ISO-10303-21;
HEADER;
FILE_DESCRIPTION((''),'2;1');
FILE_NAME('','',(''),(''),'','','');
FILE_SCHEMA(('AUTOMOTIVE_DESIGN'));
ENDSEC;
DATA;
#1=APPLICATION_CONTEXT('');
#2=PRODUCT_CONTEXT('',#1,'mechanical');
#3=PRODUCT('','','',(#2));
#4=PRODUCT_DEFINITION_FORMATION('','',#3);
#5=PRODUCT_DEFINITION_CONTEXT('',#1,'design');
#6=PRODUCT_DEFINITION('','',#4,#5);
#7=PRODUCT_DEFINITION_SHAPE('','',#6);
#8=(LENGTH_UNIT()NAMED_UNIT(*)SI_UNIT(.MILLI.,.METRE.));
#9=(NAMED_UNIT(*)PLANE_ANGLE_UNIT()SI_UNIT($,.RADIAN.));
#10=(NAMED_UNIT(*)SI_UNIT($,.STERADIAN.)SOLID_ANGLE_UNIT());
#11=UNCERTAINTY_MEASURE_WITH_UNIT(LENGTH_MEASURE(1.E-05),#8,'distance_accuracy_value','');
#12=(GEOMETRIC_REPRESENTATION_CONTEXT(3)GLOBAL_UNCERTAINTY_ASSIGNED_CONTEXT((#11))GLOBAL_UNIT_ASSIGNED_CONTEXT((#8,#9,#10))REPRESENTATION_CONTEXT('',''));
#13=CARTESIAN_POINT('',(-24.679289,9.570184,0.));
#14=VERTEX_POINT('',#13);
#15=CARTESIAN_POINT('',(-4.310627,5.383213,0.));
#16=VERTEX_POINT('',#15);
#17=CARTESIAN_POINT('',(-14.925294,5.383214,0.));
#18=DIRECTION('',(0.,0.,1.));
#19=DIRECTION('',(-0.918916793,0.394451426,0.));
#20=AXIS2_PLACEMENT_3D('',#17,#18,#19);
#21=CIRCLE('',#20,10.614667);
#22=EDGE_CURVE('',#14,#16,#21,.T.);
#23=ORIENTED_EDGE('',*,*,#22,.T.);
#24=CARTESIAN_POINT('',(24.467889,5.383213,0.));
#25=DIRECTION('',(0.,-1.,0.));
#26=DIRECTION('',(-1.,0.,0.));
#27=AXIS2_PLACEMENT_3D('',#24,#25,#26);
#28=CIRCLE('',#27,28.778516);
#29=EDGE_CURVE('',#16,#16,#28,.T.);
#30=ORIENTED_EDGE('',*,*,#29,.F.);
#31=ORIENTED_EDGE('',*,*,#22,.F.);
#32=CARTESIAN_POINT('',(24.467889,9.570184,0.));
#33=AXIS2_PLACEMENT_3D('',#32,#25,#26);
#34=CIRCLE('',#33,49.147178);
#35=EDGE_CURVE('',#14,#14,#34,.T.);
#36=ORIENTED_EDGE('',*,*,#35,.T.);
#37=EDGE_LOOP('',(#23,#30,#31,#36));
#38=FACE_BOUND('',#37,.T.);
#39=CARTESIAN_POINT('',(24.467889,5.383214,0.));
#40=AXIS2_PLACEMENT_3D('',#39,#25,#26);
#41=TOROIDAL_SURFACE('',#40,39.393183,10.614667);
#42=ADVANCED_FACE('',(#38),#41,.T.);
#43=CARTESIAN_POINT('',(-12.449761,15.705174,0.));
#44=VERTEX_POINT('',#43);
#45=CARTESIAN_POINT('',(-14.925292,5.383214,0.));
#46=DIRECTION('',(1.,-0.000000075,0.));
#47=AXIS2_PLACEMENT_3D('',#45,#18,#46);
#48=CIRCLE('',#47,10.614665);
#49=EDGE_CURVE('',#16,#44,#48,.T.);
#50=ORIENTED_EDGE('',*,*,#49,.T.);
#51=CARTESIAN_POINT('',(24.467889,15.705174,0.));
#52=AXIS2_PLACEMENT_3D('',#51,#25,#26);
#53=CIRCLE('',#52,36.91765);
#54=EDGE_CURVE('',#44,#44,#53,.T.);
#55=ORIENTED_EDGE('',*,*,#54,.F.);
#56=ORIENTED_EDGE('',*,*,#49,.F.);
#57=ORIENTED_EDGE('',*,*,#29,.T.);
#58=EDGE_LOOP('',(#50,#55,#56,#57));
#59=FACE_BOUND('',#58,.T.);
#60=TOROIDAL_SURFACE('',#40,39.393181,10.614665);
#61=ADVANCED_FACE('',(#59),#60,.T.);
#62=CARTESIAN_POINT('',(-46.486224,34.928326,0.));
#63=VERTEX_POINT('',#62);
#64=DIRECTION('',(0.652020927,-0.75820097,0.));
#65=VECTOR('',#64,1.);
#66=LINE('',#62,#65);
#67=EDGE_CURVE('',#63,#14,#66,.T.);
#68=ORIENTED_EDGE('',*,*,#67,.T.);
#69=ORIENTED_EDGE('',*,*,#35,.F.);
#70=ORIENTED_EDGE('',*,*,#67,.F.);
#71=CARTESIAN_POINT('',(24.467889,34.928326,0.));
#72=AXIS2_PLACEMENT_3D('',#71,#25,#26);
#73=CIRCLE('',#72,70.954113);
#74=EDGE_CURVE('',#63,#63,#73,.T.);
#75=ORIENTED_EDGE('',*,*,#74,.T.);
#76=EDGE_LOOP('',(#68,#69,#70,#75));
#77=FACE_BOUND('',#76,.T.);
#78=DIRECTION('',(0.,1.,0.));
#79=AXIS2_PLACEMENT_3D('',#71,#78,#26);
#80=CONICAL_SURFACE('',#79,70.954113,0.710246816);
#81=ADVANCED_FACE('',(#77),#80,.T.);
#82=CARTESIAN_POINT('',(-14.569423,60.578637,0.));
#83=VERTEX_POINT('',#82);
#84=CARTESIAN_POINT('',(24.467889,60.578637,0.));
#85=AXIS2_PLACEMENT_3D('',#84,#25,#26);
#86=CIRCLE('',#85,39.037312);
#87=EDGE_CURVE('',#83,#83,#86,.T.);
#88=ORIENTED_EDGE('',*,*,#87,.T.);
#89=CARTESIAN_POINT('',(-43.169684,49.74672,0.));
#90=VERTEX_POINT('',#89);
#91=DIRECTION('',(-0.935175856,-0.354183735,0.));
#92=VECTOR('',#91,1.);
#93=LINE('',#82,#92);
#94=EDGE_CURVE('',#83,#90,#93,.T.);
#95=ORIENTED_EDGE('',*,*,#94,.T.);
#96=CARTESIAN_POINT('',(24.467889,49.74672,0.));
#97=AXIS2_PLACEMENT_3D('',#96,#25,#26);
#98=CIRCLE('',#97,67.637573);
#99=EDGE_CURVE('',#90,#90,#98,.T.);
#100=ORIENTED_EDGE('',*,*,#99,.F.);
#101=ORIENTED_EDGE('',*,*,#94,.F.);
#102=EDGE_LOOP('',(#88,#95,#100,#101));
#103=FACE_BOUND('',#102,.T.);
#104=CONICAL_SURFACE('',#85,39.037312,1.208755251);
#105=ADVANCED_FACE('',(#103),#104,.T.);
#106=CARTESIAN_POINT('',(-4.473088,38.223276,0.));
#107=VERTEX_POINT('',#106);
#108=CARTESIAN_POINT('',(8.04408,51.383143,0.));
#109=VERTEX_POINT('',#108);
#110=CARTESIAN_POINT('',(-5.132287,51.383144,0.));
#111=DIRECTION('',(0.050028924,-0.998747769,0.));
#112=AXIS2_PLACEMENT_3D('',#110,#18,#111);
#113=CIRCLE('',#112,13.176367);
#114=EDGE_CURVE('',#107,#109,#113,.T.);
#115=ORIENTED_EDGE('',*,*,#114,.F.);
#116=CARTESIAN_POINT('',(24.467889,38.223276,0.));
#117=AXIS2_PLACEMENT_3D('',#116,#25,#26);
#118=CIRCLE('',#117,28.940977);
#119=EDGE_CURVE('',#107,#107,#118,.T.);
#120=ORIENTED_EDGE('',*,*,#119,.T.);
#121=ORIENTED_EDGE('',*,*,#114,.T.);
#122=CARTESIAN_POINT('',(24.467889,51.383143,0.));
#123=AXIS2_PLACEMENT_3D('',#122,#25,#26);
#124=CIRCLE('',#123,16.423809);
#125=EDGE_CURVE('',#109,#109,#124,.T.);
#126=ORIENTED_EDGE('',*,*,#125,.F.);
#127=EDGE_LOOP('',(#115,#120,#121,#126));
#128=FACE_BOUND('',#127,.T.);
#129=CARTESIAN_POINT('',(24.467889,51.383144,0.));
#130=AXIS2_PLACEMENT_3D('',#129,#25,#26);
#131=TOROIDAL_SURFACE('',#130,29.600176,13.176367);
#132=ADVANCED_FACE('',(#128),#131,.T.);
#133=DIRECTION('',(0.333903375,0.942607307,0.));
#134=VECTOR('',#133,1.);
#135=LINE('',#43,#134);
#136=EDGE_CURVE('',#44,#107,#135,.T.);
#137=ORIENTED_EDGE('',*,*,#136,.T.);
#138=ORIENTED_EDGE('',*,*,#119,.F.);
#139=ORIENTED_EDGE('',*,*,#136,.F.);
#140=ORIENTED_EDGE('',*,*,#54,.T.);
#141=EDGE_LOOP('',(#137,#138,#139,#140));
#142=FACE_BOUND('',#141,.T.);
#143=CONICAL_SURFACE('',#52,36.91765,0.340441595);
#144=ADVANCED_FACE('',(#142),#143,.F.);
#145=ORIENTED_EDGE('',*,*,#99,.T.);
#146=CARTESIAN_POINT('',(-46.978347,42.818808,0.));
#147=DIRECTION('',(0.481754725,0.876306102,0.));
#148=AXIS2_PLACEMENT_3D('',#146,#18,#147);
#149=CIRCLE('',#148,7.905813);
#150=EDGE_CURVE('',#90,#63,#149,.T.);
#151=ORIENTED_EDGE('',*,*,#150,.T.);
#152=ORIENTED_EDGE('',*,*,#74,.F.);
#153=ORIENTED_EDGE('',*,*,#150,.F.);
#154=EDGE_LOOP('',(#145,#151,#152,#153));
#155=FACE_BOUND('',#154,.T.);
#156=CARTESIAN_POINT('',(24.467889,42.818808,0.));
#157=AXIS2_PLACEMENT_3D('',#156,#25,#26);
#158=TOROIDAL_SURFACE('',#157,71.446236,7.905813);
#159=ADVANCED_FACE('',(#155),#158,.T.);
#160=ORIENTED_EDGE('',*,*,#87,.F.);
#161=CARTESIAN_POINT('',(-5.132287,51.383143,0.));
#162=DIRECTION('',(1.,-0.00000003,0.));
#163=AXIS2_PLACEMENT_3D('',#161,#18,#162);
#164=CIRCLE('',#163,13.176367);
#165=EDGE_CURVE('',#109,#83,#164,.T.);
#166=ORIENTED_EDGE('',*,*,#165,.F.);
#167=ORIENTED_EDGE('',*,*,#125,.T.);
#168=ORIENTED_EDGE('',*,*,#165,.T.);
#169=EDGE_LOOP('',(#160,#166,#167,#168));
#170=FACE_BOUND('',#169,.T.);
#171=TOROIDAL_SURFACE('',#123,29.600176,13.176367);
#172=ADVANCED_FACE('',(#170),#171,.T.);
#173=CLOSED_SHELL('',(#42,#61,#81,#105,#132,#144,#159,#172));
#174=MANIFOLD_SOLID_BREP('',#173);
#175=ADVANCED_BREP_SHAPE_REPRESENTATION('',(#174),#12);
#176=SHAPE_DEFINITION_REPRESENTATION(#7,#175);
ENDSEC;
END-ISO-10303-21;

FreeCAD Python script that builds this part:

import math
import FreeCAD as App
import Part
import Sketcher
from FreeCAD import Vector

doc = App.newDocument("Part")
body = doc.addObject("PartDesign::Body", "Body")

sketch1 = body.newObject("Sketcher::SketchObject", "Sketch")
sketch1.AttachmentSupport = (doc.getObject("XY_Plane"), [""])
sketch1.MapMode = "FlatFace"
sketch1.addGeometry([
    Part.ArcOfCircle(Part.Circle(Vector(-15, 5, 0), Vector(0, 0, 1), 11), math.radians(157), math.radians(360)),
    Part.ArcOfCircle(Part.Circle(Vector(-15, 5, 0), Vector(0, 0, 1), 11), math.radians(0), math.radians(77)),
    Part.LineSegment(Vector(-12, 16, 0), Vector(-4, 38, 0)),
    Part.ArcOfCircle(Part.Circle(Vector(-5, 51, 0), Vector(0, 0, 1), 13), math.radians(-87), math.radians(0)),
    Part.ArcOfCircle(Part.Circle(Vector(-5, 51, 0), Vector(0, 0, 1), 13), math.radians(0), math.radians(136)),
    Part.LineSegment(Vector(-15, 61, 0), Vector(-43, 50, 0)),
    Part.ArcOfCircle(Part.Circle(Vector(-47, 43, 0), Vector(0, 0, 1), 8), math.radians(61), math.radians(274)),
    Part.LineSegment(Vector(-46, 35, 0), Vector(-25, 10, 0)),
], False)
sketch1.addGeometry(Part.LineSegment(Vector(24, 61, 0), Vector(24, 5, 0)), True)
sketch1.addConstraint([
    Sketcher.Constraint("Tangent", 0, 2, 1, 1),
    Sketcher.Constraint("Coincident", 1, 2, 2, 1),
    Sketcher.Constraint("Coincident", 2, 2, 3, 1),
    Sketcher.Constraint("Tangent", 3, 2, 4, 1),
    Sketcher.Constraint("Coincident", 4, 2, 5, 1),
    Sketcher.Constraint("Coincident", 5, 2, 6, 1),
    Sketcher.Constraint("Coincident", 6, 2, 7, 1),
    Sketcher.Constraint("Coincident", 7, 2, 0, 1),
    Sketcher.Constraint("Vertical", 8),
    Sketcher.Constraint("Equal", 0, 1),
    Sketcher.Constraint("Equal", 3, 4),
    Sketcher.Constraint("Horizontal", 1, 3, 0, 2),
    Sketcher.Constraint("Horizontal", 4, 3, 3, 2),
    Sketcher.Constraint("Horizontal", 4, 2, 8, 1),
    Sketcher.Constraint("Horizontal", 0, 2, 8, 2),
    Sketcher.Constraint("Radius", 0, 10.614667),
    Sketcher.Constraint("Radius", 3, 13.176367),
    Sketcher.Constraint("Radius", 6, 7.905813),
    Sketcher.Constraint("DistanceX", 4, 3, 2, 2, 0.659199),
    Sketcher.Constraint("DistanceX", 6, 2, 4, 2, 31.916801),
    Sketcher.Constraint("DistanceY", 8, 2, 8, 1, 55.195424),
    Sketcher.Constraint("DistanceX", 1, 2, -1, 1, 12.449761),
    Sketcher.Constraint("DistanceX", -1, 1, 3, 2, 8.04408),
    Sketcher.Constraint("DistanceY", -1, 1, 5, 2, 49.74672),
    Sketcher.Constraint("DistanceX", 7, 2, -1, 1, 24.679289),
    Sketcher.Constraint("DistanceX", -1, 1, 8, 1, 24.467889),
    Sketcher.Constraint("DistanceY", 1, 3, 3, 3, 45.99993),
    Sketcher.Constraint("DistanceX", 6, 3, 3, 3, 41.846059),
    Sketcher.Constraint("DistanceX", 4, 3, 0, 2, 0.82166),
    Sketcher.Constraint("DistanceY", 6, 3, 4, 2, 17.759829),
    Sketcher.Constraint("DistanceX", 5, 2, 4, 2, 28.600261),
])
revolution = body.newObject("PartDesign::Revolution", "Revolution")
revolution.Profile = sketch1
revolution.ReferenceAxis = (sketch1, ["Axis0"])
revolution.Angle = 360

doc.recompute()
